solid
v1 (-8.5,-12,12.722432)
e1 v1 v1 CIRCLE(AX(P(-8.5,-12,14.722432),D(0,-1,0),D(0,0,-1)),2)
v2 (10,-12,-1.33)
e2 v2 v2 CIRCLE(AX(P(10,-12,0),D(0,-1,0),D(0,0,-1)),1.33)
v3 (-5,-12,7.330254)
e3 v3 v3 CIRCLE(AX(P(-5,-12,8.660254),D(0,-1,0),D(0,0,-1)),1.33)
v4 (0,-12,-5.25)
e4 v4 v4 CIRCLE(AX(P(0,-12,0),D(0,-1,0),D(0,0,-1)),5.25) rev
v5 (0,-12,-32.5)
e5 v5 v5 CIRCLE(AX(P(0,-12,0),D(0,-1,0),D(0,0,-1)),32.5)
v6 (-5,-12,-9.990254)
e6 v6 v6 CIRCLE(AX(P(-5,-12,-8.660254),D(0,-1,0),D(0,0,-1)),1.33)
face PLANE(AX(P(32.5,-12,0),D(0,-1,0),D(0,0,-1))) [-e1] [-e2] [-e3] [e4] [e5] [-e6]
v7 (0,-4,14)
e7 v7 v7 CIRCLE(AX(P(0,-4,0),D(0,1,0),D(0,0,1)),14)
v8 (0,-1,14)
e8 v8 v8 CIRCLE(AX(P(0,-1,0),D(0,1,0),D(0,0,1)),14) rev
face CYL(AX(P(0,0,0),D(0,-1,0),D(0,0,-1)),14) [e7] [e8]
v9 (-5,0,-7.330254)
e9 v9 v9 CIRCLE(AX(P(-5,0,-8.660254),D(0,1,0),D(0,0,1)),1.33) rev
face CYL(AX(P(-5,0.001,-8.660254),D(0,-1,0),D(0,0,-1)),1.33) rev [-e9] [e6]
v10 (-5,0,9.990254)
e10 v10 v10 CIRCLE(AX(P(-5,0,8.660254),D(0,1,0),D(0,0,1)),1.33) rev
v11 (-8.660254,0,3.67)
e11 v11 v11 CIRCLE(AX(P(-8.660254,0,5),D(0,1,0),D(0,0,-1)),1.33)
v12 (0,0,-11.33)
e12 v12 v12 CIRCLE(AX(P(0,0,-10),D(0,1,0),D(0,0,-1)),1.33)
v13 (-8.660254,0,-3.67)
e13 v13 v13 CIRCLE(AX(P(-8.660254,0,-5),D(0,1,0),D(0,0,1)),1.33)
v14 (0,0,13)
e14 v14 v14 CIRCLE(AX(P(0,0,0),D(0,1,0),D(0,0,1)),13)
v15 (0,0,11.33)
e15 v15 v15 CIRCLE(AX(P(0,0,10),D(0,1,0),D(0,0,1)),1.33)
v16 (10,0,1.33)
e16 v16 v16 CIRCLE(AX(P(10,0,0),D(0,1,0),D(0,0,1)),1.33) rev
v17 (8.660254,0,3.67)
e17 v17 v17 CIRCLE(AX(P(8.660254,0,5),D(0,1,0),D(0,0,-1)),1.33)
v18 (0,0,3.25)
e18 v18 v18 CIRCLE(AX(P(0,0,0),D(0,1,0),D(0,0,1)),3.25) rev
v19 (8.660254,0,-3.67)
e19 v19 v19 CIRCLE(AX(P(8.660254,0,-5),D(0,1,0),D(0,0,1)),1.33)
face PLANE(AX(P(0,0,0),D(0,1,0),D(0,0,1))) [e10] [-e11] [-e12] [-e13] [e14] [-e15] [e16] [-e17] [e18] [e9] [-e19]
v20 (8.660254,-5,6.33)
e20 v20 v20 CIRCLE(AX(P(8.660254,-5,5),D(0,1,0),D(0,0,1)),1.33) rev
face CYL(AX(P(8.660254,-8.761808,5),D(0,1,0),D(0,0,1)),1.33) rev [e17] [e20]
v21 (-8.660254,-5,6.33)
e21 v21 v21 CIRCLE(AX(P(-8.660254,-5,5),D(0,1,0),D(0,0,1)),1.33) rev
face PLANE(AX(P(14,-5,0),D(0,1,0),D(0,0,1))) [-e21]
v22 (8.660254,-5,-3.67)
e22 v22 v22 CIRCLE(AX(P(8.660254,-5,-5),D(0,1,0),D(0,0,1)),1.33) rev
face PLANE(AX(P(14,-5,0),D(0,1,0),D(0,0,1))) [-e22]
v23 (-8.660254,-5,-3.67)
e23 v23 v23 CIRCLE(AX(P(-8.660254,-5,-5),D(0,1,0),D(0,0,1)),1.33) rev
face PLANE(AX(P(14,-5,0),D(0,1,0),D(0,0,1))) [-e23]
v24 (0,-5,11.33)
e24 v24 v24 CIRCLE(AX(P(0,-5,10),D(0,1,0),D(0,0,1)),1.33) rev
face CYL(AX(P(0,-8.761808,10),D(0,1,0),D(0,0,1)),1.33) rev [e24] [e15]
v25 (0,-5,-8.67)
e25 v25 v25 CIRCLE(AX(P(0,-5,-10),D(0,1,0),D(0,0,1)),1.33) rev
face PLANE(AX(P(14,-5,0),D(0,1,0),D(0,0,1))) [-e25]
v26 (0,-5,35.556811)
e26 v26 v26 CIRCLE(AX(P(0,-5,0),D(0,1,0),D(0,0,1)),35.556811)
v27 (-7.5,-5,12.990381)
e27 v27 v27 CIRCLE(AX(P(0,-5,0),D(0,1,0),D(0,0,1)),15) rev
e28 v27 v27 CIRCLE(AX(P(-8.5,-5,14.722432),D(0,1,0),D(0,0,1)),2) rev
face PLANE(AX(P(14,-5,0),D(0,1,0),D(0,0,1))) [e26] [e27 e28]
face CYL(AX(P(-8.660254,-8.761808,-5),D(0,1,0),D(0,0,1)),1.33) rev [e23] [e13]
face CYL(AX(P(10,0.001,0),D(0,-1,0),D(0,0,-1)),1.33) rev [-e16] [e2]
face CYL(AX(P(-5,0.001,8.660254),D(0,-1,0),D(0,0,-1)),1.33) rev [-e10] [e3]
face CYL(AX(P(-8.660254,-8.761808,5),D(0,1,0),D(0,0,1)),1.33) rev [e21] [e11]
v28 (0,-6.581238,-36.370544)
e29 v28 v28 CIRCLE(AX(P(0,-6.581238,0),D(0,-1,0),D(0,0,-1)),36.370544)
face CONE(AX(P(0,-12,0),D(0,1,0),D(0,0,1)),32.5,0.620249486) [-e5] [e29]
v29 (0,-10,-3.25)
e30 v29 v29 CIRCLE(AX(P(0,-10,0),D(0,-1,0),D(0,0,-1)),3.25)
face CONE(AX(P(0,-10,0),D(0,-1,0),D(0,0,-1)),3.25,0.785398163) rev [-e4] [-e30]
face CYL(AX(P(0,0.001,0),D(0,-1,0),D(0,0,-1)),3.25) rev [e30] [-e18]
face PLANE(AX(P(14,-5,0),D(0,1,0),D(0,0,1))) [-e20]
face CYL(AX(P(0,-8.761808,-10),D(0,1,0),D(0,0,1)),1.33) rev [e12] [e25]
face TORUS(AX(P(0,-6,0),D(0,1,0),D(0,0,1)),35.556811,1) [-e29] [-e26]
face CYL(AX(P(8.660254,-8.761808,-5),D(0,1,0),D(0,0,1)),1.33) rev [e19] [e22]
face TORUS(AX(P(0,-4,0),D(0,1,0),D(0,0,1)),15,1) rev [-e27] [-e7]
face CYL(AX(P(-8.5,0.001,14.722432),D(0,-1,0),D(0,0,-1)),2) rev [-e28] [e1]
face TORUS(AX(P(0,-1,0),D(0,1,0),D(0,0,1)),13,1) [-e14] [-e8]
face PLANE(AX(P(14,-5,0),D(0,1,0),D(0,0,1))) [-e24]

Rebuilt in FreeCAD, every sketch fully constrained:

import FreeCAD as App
import Part
import Sketcher

V = App.Vector


def edges_at(feature, points):
    """Names of the edges that pass closest to the given points."""
    edges = feature.Shape.Edges
    near = lambda p: min(range(len(edges)), key=lambda i: edges[i].distToShape(Part.Vertex(*p))[0])
    return sorted({f"Edge{near(p) + 1}" for p in points})


def add_polygon(sketch, points):
    """Adds a closed chain of lines whose ends are joined by coincident constraints."""
    first, n = sketch.GeometryCount, len(points)
    for a, b in zip(points, points[1:] + points[:1]):
        sketch.addGeometry(Part.LineSegment(App.Vector(*a, 0), App.Vector(*b, 0)), False)
    for i in range(n):
        sketch.addConstraint(Sketcher.Constraint("Coincident", first + i, 2, first + (i + 1) % n, 1))

doc = App.newDocument("Part")
body = doc.addObject("PartDesign::Body", "Body")

# Sketch on XY plane
sketch1 = body.newObject("Sketcher::SketchObject", "Sketch")
sketch1.AttachmentSupport = (doc.getObject("XY_Plane"), [""])
sketch1.MapMode = "FlatFace"
add_polygon(sketch1, [(38, -5), (14, -5), (14, 0), (0, 0), (0, -12), (32, -12)])  # lines 0-5
sketch1.addConstraint([
    Sketcher.Constraint("Horizontal", 0),
    Sketcher.Constraint("Vertical", 1),
    Sketcher.Constraint("Horizontal", 2),
    Sketcher.Constraint("Vertical", 3),
    Sketcher.Constraint("Horizontal", 4),
    Sketcher.Constraint("Coincident", 2, 2, -1, 1),
    Sketcher.Constraint("DistanceX", 2, 2, 2, 1, 14.0),
    Sketcher.Constraint("DistanceY", 1, 1, 1, 2, 5.0),
    Sketcher.Constraint("DistanceY", 3, 2, 3, 1, 12.0),
    Sketcher.Constraint("DistanceX", 0, 2, 0, 1, 23.5),
    Sketcher.Constraint("DistanceX", 4, 1, 4, 2, 32.5),
])
revolution = body.newObject("PartDesign::Revolution", "Revolution")
revolution.Profile = sketch1
revolution.ReferenceAxis = (sketch1, ["V_Axis"])
revolution.Angle = 360
doc.recompute()

fillet = body.newObject("PartDesign::Fillet", "Fillet")
fillet.Base = (revolution, edges_at(revolution, [(-37.5, -5, 0), (-14, -5, 0), (-14, 0, 0)]))
fillet.Radius = 1

# Sketch on XZ plane
sketch2 = body.newObject("Sketcher::SketchObject", "Sketch001")
sketch2.AttachmentSupport = (doc.getObject("XZ_Plane"), [""])
sketch2.MapMode = "FlatFace"
sketch2.AttachmentOffset = App.Placement(V(0, 0, 12), App.Rotation())
sketch2.addGeometry(Part.Circle(V(0, 0, 0), V(0, 0, 1), 3.2), False)
sketch2.addConstraint([
    Sketcher.Constraint("Coincident", 0, 3, -1, 1),
    Sketcher.Constraint("Diameter", 0, 6.5),
])
pocket1 = body.newObject("PartDesign::Pocket", "Pocket")
pocket1.Profile = sketch2
pocket1.Type = "UpToFirst"

# Sketch on XZ plane
sketch3 = body.newObject("Sketcher::SketchObject", "Sketch002")
sketch3.AttachmentSupport = (doc.getObject("XZ_Plane"), [""])
sketch3.MapMode = "FlatFace"
sketch3.AttachmentOffset = App.Placement(V(0, 0, 12), App.Rotation())
sketch3.addGeometry(Part.Circle(V(10, 0, 0), V(0, 0, 1), 1.3), False)
sketch3.addConstraint([
    Sketcher.Constraint("PointOnObject", 0, 3, -1),
    Sketcher.Constraint("Diameter", 0, 2.66),
    Sketcher.Constraint("DistanceX", -1, 1, 0, 3, 10.0),
])
pocket2 = body.newObject("PartDesign::Pocket", "Pocket001")
pocket2.Profile = sketch3
pocket2.Type = "UpToFirst"

# Sketch on XZ plane
sketch4 = body.newObject("Sketcher::SketchObject", "Sketch003")
sketch4.AttachmentSupport = (doc.getObject("XZ_Plane"), [""])
sketch4.MapMode = "FlatFace"
sketch4.AttachmentOffset = App.Placement(V(0, 0, 12), App.Rotation())
sketch4.addGeometry(Part.Circle(V(-5, -8.7, 0), V(0, 0, 1), 1.3), False)
sketch4.addConstraint([
    Sketcher.Constraint("Diameter", 0, 2.66),
    Sketcher.Constraint("DistanceX", 0, 3, -1, 1, 5.0),
    Sketcher.Constraint("DistanceY", 0, 3, -1, 1, 8.660254),
])
pocket3 = body.newObject("PartDesign::Pocket", "Pocket002")
pocket3.Profile = sketch4
pocket3.Type = "UpToFirst"

# Sketch on XZ plane
sketch5 = body.newObject("Sketcher::SketchObject", "Sketch004")
sketch5.AttachmentSupport = (doc.getObject("XZ_Plane"), [""])
sketch5.MapMode = "FlatFace"
sketch5.AttachmentOffset = App.Placement(V(0, 0, 12), App.Rotation())
sketch5.addGeometry(Part.Circle(V(-5, 8.7, 0), V(0, 0, 1), 1.3), False)
sketch5.addConstraint([
    Sketcher.Constraint("Diameter", 0, 2.66),
    Sketcher.Constraint("DistanceX", 0, 3, -1, 1, 5.0),
    Sketcher.Constraint("DistanceY", -1, 1, 0, 3, 8.660254),
])
pocket4 = body.newObject("PartDesign::Pocket", "Pocket003")
pocket4.Profile = sketch5
pocket4.Type = "UpToFirst"

# Sketch on XZ plane
sketch6 = body.newObject("Sketcher::SketchObject", "Sketch005")
sketch6.AttachmentSupport = (doc.getObject("XZ_Plane"), [""])
sketch6.MapMode = "FlatFace"
sketch6.AttachmentOffset = App.Placement(V(0, 0, 12), App.Rotation())
sketch6.addGeometry(Part.Circle(V(-8.5, 14.7, 0), V(0, 0, 1), 2), False)
sketch6.addConstraint([
    Sketcher.Constraint("Diameter", 0, 4.0),
    Sketcher.Constraint("DistanceX", 0, 3, -1, 1, 8.5),
    Sketcher.Constraint("DistanceY", -1, 1, 0, 3, 14.722432),
])
pocket5 = body.newObject("PartDesign::Pocket", "Pocket004")
pocket5.Profile = sketch6
pocket5.Type = "UpToFirst"
doc.recompute()

chamfer = body.newObject("PartDesign::Chamfer", "Chamfer")
chamfer.Base = (pocket5, edges_at(pocket5, [(-3.25, -12, 0)]))
chamfer.Size = 2

# Sketch on XZ plane
sketch7 = body.newObject("Sketcher::SketchObject", "Sketch006")
sketch7.AttachmentSupport = (doc.getObject("XZ_Plane"), [""])
sketch7.MapMode = "FlatFace"
sketch7.addGeometry([
    Part.Circle(V(8.7, -5, 0), V(0, 0, 1), 1.3),  # 0
    Part.Circle(V(8.7, 5, 0), V(0, 0, 1), 1.3),  # 1
    Part.Circle(V(-8.7, 5, 0), V(0, 0, 1), 1.3),  # 2
    Part.Circle(V(0, 10, 0), V(0, 0, 1), 1.3),  # 3
    Part.Circle(V(0, -10, 0), V(0, 0, 1), 1.3),  # 4
    Part.Circle(V(-8.7, -5, 0), V(0, 0, 1), 1.3),  # 5
], False)
sketch7.addConstraint([
    Sketcher.Constraint("Equal", 0, 1),
    Sketcher.Constraint("Equal", 1, 2),
    Sketcher.Constraint("Equal", 2, 3),
    Sketcher.Constraint("Equal", 3, 4),
    Sketcher.Constraint("Equal", 4, 5),
    Sketcher.Constraint("Symmetric", 0, 3, 2, 3, -1, 1),
    Sketcher.Constraint("Symmetric", 3, 3, 4, 3, -1, 1),
    Sketcher.Constraint("Symmetric", 1, 3, 5, 3, -1, 1),
    Sketcher.Constraint("Symmetric", 1, 3, 2, 3, -2),
    Sketcher.Constraint("PointOnObject", 3, 3, -2),
    Sketcher.Constraint("Diameter", 0, 2.66),
    Sketcher.Constraint("DistanceY", 0, 3, -1, 1, 5.0),
    Sketcher.Constraint("DistanceY", -1, 1, 3, 3, 10.0),
    Sketcher.Constraint("DistanceX", 2, 3, 1, 3, 17.320508),
])
pocket6 = body.newObject("PartDesign::Pocket", "Pocket005")
pocket6.Profile = sketch7
pocket6.Length = 5
pocket6.Reversed = True

doc.recompute()
